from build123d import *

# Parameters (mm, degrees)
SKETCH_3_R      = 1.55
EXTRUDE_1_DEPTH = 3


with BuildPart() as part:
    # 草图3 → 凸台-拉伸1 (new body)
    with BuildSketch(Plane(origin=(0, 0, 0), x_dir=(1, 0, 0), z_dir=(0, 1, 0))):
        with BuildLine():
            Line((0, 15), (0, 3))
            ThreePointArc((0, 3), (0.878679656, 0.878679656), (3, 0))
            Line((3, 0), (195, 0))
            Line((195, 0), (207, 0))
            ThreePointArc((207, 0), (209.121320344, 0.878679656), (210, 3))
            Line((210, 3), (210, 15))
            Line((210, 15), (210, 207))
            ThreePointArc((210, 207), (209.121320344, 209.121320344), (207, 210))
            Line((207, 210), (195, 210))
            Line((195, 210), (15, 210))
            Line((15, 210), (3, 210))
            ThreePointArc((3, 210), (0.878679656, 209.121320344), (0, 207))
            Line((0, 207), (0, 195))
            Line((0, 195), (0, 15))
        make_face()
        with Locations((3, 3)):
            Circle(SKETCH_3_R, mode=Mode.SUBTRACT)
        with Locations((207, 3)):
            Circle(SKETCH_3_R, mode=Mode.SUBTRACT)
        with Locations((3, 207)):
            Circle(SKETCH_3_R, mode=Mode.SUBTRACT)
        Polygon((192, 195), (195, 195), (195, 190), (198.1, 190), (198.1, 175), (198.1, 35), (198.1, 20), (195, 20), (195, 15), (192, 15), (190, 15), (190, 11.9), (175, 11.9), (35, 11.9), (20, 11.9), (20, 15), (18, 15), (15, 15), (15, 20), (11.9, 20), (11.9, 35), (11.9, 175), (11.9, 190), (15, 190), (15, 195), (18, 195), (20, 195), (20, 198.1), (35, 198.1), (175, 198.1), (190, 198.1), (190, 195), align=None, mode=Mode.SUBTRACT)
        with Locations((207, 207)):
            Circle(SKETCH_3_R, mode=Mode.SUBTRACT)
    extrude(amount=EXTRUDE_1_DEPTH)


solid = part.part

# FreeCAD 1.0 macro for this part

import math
import FreeCAD as App
import Part
import Sketcher

doc = App.newDocument("Part")
params = doc.addObject("Spreadsheet::Sheet", "Params")
for row, (alias, value) in enumerate([
    ("sketch1_radius", "3 mm"),
    ("sketch1_diameter", "3.1 mm"),
    ("sketch1_width", "204 mm"),
    ("sketch1_width2", "5 mm"),
    ("sketch1_width3", "170 mm"),
    ("pad1_length", "3 mm"),
], start=1):
    params.set(f"A{row}", alias)
    params.set(f"B{row}", "=" + value)
    params.setAlias(f"B{row}", alias)

body = doc.addObject("PartDesign::Body", "Body")

# Sketch on XZ plane
sketch1 = body.newObject("Sketcher::SketchObject", "Sketch")
sketch1.AttachmentSupport = (doc.getObject("XZ_Plane"), [""])
sketch1.MapMode = "FlatFace"
sketch1.addGeometry([
    Part.ArcOfCircle(Part.Circle(App.Vector(3, -3, 0), App.Vector(0, 0, 1), 3), math.radians(90), math.radians(180)),  # 0
    Part.LineSegment(App.Vector(3, 0, 0), App.Vector(207, 0, 0)),  # 1
    Part.ArcOfCircle(Part.Circle(App.Vector(207, -3, 0), App.Vector(0, 0, 1), 3), math.radians(0), math.radians(90)),  # 2
    Part.LineSegment(App.Vector(210, -3, 0), App.Vector(210, -207, 0)),  # 3
    Part.ArcOfCircle(Part.Circle(App.Vector(207, -207, 0), App.Vector(0, 0, 1), 3), math.radians(-90), math.radians(0)),  # 4
    Part.LineSegment(App.Vector(207, -210, 0), App.Vector(3, -210, 0)),  # 5
    Part.ArcOfCircle(Part.Circle(App.Vector(3, -207, 0), App.Vector(0, 0, 1), 3), math.radians(180), math.radians(270)),  # 6
    Part.LineSegment(App.Vector(0, -207, 0), App.Vector(0, -3, 0)),  # 7
    Part.Circle(App.Vector(3, -3, 0), App.Vector(0, 0, 1), 1.6),  # 8
    Part.Circle(App.Vector(207, -3, 0), App.Vector(0, 0, 1), 1.6),  # 9
    Part.LineSegment(App.Vector(190, -195, 0), App.Vector(195, -195, 0)),  # 10
    Part.LineSegment(App.Vector(195, -195, 0), App.Vector(195, -190, 0)),  # 11
    Part.LineSegment(App.Vector(195, -190, 0), App.Vector(198.1, -190, 0)),  # 12
    Part.LineSegment(App.Vector(198.1, -190, 0), App.Vector(198.1, -20, 0)),  # 13
    Part.LineSegment(App.Vector(198.1, -20, 0), App.Vector(195, -20, 0)),  # 14
    Part.LineSegment(App.Vector(195, -20, 0), App.Vector(195, -15, 0)),  # 15
    Part.LineSegment(App.Vector(195, -15, 0), App.Vector(190, -15, 0)),  # 16
    Part.LineSegment(App.Vector(190, -15, 0), App.Vector(190, -11.9, 0)),  # 17
    Part.LineSegment(App.Vector(190, -11.9, 0), App.Vector(20, -11.9, 0)),  # 18
    Part.LineSegment(App.Vector(20, -11.9, 0), App.Vector(20, -15, 0)),  # 19
    Part.LineSegment(App.Vector(20, -15, 0), App.Vector(15, -15, 0)),  # 20
    Part.LineSegment(App.Vector(15, -15, 0), App.Vector(15, -20, 0)),  # 21
    Part.LineSegment(App.Vector(15, -20, 0), App.Vector(11.9, -20, 0)),  # 22
    Part.LineSegment(App.Vector(11.9, -20, 0), App.Vector(11.9, -190, 0)),  # 23
    Part.LineSegment(App.Vector(11.9, -190, 0), App.Vector(15, -190, 0)),  # 24
    Part.LineSegment(App.Vector(15, -190, 0), App.Vector(15, -195, 0)),  # 25
    Part.LineSegment(App.Vector(15, -195, 0), App.Vector(20, -195, 0)),  # 26
    Part.LineSegment(App.Vector(20, -195, 0), App.Vector(20, -198.1, 0)),  # 27
    Part.LineSegment(App.Vector(20, -198.1, 0), App.Vector(190, -198.1, 0)),  # 28
    Part.LineSegment(App.Vector(190, -198.1, 0), App.Vector(190, -195, 0)),  # 29
    Part.Circle(App.Vector(3, -207, 0), App.Vector(0, 0, 1), 1.6),  # 30
    Part.Circle(App.Vector(207, -207, 0), App.Vector(0, 0, 1), 1.6),  # 31
], False)
sketch1.addConstraint([
    Sketcher.Constraint("Tangent", 0, 1, 1, 1),
    Sketcher.Constraint("Tangent", 1, 2, 2, 2),
    Sketcher.Constraint("Tangent", 2, 1, 3, 1),
    Sketcher.Constraint("Tangent", 3, 2, 4, 2),
    Sketcher.Constraint("Tangent", 4, 1, 5, 1),
    Sketcher.Constraint("Tangent", 5, 2, 6, 2),
    Sketcher.Constraint("Tangent", 6, 1, 7, 1),
    Sketcher.Constraint("Tangent", 7, 2, 0, 2),
    Sketcher.Constraint("Coincident", 10, 2, 11, 1),
    Sketcher.Constraint("Coincident", 11, 2, 12, 1),
    Sketcher.Constraint("Coincident", 12, 2, 13, 1),
    Sketcher.Constraint("Coincident", 13, 2, 14, 1),
    Sketcher.Constraint("Coincident", 14, 2, 15, 1),
    Sketcher.Constraint("Coincident", 15, 2, 16, 1),
    Sketcher.Constraint("Coincident", 16, 2, 17, 1),
    Sketcher.Constraint("Coincident", 17, 2, 18, 1),
    Sketcher.Constraint("Coincident", 18, 2, 19, 1),
    Sketcher.Constraint("Coincident", 19, 2, 20, 1),
    Sketcher.Constraint("Coincident", 20, 2, 21, 1),
    Sketcher.Constraint("Coincident", 21, 2, 22, 1),
    Sketcher.Constraint("Coincident", 22, 2, 23, 1),
    Sketcher.Constraint("Coincident", 23, 2, 24, 1),
    Sketcher.Constraint("Coincident", 24, 2, 25, 1),
    Sketcher.Constraint("Coincident", 25, 2, 26, 1),
    Sketcher.Constraint("Coincident", 26, 2, 27, 1),
    Sketcher.Constraint("Coincident", 27, 2, 28, 1),
    Sketcher.Constraint("Coincident", 28, 2, 29, 1),
    Sketcher.Constraint("Coincident", 29, 2, 10, 1),
    Sketcher.Constraint("Horizontal", 1),
    Sketcher.Constraint("Vertical", 3),
    Sketcher.Constraint("Horizontal", 5),
    Sketcher.Constraint("Vertical", 7),
    Sketcher.Constraint("Horizontal", 10),
    Sketcher.Constraint("Vertical", 11),
    Sketcher.Constraint("Horizontal", 12),
    Sketcher.Constraint("Vertical", 13),
    Sketcher.Constraint("Horizontal", 14),
    Sketcher.Constraint("Vertical", 15),
    Sketcher.Constraint("Horizontal", 16),
    Sketcher.Constraint("Vertical", 17),
    Sketcher.Constraint("Horizontal", 18),
    Sketcher.Constraint("Vertical", 19),
    Sketcher.Constraint("Horizontal", 20),
    Sketcher.Constraint("Vertical", 21),
    Sketcher.Constraint("Horizontal", 22),
    Sketcher.Constraint("Vertical", 23),
    Sketcher.Constraint("Horizontal", 24),
    Sketcher.Constraint("Vertical", 25),
    Sketcher.Constraint("Horizontal", 26),
    Sketcher.Constraint("Vertical", 27),
    Sketcher.Constraint("Horizontal", 28),
    Sketcher.Constraint("Vertical", 29),
    Sketcher.Constraint("Coincident", 8, 3, 0, 3),
    Sketcher.Constraint("Coincident", 9, 3, 2, 3),
    Sketcher.Constraint("Coincident", 30, 3, 6, 3),
    Sketcher.Constraint("Coincident", 31, 3, 4, 3),
    Sketcher.Constraint("Equal", 0, 2),
    Sketcher.Constraint("Equal", 2, 4),
    Sketcher.Constraint("Equal", 4, 6),
    Sketcher.Constraint("Equal", 8, 9),
    Sketcher.Constraint("Equal", 9, 30),
    Sketcher.Constraint("Equal", 30, 31),
    Sketcher.Constraint("PointOnObject", 0, 1, -1),
    Sketcher.Constraint("PointOnObject", 6, 1, -2),
    Sketcher.Constraint("Horizontal", 16, 2, 19, 2),
    Sketcher.Constraint("Horizontal", 14, 2, 21, 2),
    Sketcher.Constraint("Horizontal", 12, 2, 23, 2),
    Sketcher.Constraint("Horizontal", 10, 2, 25, 2),
    Sketcher.Constraint("Vertical", 11, 2, 14, 2),
    Sketcher.Constraint("Vertical", 21, 2, 24, 2),
    Sketcher.Constraint("Vertical", 19, 2, 26, 2),
    Sketcher.Constraint("Vertical", 17, 2, 28, 2),
    Sketcher.Constraint("Equal", 16, 20),
    Sketcher.Constraint("Equal", 14, 22),
    Sketcher.Constraint("Equal", 5, 3),
    Sketcher.Constraint("Equal", 26, 11),
    Sketcher.Constraint("Equal", 28, 13),
    Sketcher.Constraint("Equal", 11, 15),
    Sketcher.Constraint("Equal", 24, 17),
    Sketcher.Constraint("Equal", 19, 27),
    Sketcher.Constraint("Radius", 0, 3.0),
    Sketcher.Constraint("Diameter", 8, 3.1),
    Sketcher.Constraint("DistanceX", 1, 1, 1, 2, 204.0),
    Sketcher.Constraint("DistanceX", 10, 1, 10, 2, 5.0),
    Sketcher.Constraint("DistanceX", 18, 2, 18, 1, 170.0),
    Sketcher.Constraint("DistanceX", 12, 1, 12, 2, 3.1),
    Sketcher.Constraint("DistanceX", -1, 1, 10, 2, 195.0),
    Sketcher.Constraint("DistanceY", 10, 2, -1, 1, 195.0),
])
sketch1.setExpression("Constraints[80]", "Params.sketch1_radius")
sketch1.setExpression("Constraints[81]", "Params.sketch1_diameter")
sketch1.setExpression("Constraints[82]", "Params.sketch1_width")
sketch1.setExpression("Constraints[83]", "Params.sketch1_width2")
sketch1.setExpression("Constraints[84]", "Params.sketch1_width3")
pad1 = body.newObject("PartDesign::Pad", "Pad")
pad1.Profile = sketch1
pad1.setExpression("Length", "Params.pad1_length")
pad1.Reversed = True

doc.recompute()
